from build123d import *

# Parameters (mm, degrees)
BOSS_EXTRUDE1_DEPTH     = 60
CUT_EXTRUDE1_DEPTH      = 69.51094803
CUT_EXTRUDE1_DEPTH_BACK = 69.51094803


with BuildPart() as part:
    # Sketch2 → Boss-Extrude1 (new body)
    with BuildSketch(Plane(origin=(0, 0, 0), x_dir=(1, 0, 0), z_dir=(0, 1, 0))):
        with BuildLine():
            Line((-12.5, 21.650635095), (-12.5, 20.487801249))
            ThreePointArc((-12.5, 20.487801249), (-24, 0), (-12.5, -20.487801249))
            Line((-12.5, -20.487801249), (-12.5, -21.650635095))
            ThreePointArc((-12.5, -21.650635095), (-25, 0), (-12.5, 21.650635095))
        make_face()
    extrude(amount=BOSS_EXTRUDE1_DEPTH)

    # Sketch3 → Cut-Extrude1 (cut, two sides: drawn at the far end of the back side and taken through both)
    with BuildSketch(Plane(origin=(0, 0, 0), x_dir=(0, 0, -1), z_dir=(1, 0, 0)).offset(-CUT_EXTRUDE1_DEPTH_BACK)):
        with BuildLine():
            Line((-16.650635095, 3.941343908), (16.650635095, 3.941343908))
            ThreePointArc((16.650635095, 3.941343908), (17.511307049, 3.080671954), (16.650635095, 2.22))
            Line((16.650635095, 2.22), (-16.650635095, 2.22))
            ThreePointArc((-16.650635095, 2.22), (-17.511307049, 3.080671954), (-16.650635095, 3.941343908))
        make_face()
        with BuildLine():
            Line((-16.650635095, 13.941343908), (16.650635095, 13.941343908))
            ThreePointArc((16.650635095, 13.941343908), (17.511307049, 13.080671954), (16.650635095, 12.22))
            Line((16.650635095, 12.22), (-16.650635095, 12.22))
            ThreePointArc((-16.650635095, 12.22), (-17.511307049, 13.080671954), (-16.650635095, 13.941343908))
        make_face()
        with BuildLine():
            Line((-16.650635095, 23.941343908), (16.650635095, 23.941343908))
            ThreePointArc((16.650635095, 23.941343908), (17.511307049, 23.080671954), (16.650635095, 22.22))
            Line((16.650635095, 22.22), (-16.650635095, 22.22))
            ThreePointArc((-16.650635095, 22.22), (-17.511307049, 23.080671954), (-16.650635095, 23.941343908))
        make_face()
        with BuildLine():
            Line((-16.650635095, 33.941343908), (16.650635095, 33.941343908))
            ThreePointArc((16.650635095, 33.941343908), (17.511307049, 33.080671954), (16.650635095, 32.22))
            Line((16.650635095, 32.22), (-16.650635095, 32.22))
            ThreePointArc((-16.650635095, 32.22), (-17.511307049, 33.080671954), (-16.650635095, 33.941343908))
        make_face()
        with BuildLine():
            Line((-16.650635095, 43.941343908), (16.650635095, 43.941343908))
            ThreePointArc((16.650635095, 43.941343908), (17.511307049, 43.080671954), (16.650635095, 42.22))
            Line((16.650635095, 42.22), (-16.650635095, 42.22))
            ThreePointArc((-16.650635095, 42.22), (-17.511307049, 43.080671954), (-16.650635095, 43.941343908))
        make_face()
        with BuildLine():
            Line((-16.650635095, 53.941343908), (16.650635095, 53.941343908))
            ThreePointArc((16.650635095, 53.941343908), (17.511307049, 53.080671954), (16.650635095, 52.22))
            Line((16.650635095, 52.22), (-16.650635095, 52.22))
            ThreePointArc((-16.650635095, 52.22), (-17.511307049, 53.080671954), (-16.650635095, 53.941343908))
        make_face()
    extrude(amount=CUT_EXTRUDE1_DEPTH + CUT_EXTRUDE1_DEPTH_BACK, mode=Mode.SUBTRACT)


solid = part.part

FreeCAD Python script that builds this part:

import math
import FreeCAD as App
import Part
import Sketcher

V = App.Vector
Q = App.Units.Quantity

doc = App.newDocument("Part")
body = doc.addObject("PartDesign::Body", "Body")

# Sketch on XZ plane
sketch1 = body.newObject("Sketcher::SketchObject", "Sketch")
sketch1.AttachmentSupport = (doc.getObject("XZ_Plane"), [""])
sketch1.MapMode = "FlatFace"
sketch1.addGeometry([
    Part.LineSegment(V(-12.5, -20.5, 0), V(-12.5, -21.7, 0)),
    Part.ArcOfCircle(Part.Circle(V(0, 0, 0), V(0, 0, 1), 25), math.radians(120), math.radians(240)),
    Part.LineSegment(V(-12.5, 21.7, 0), V(-12.5, 20.5, 0)),
    Part.ArcOfCircle(Part.Circle(V(0, 0, 0), V(0, 0, 1), 24), math.radians(121), math.radians(239)),
], False)
sketch1.addConstraint([
    Sketcher.Constraint("Coincident", 0, 2, 1, 2),
    Sketcher.Constraint("Coincident", 1, 1, 2, 1),
    Sketcher.Constraint("Coincident", 2, 2, 3, 1),
    Sketcher.Constraint("Coincident", 3, 2, 0, 1),
    Sketcher.Constraint("Vertical", 0),
    Sketcher.Constraint("Vertical", 2),
    Sketcher.Constraint("Coincident", 1, 3, -1, 1),
    Sketcher.Constraint("Coincident", 3, 3, -1, 1),
    Sketcher.Constraint("Vertical", 0, 2, 1, 1),
    Sketcher.Constraint("Radius", 1, Q("25 mm")),
    Sketcher.Constraint("Radius", 3, Q("24 mm")),
    Sketcher.Constraint("DistanceX", 0, 2, -1, 1, Q("12.5 mm")),
])
pad1 = body.newObject("PartDesign::Pad", "Pad")
pad1.Profile = sketch1
pad1.Length = 60
pad1.Reversed = True

# Sketch on YZ plane
sketch2 = body.newObject("Sketcher::SketchObject", "Sketch001")
sketch2.AttachmentSupport = (doc.getObject("YZ_Plane"), [""])
sketch2.MapMode = "FlatFace"
sketch2.addGeometry([
    Part.LineSegment(V(3.9, -16.7, 0), V(3.9, 16.7, 0)),  # 0
    Part.ArcOfCircle(Part.Circle(V(3.1, 16.7, 0), V(0, 0, 1), 0.9), math.radians(0), math.radians(180)),  # 1
    Part.LineSegment(V(2.2, 16.7, 0), V(2.2, -16.7, 0)),  # 2
    Part.ArcOfCircle(Part.Circle(V(3.1, -16.7, 0), V(0, 0, 1), 0.9), math.radians(180), math.radians(360)),  # 3
    Part.LineSegment(V(13.9, -16.7, 0), V(13.9, 16.7, 0)),  # 4
    Part.ArcOfCircle(Part.Circle(V(13.1, 16.7, 0), V(0, 0, 1), 0.9), math.radians(0), math.radians(180)),  # 5
    Part.LineSegment(V(12.2, 16.7, 0), V(12.2, -16.7, 0)),  # 6
    Part.ArcOfCircle(Part.Circle(V(13.1, -16.7, 0), V(0, 0, 1), 0.9), math.radians(180), math.radians(360)),  # 7
    Part.LineSegment(V(23.9, -16.7, 0), V(23.9, 16.7, 0)),  # 8
    Part.ArcOfCircle(Part.Circle(V(23.1, 16.7, 0), V(0, 0, 1), 0.9), math.radians(0), math.radians(180)),  # 9
    Part.LineSegment(V(22.2, 16.7, 0), V(22.2, -16.7, 0)),  # 10
    Part.ArcOfCircle(Part.Circle(V(23.1, -16.7, 0), V(0, 0, 1), 0.9), math.radians(180), math.radians(360)),  # 11
    Part.LineSegment(V(33.9, -16.7, 0), V(33.9, 16.7, 0)),  # 12
    Part.ArcOfCircle(Part.Circle(V(33.1, 16.7, 0), V(0, 0, 1), 0.9), math.radians(0), math.radians(180)),  # 13
    Part.LineSegment(V(32.2, 16.7, 0), V(32.2, -16.7, 0)),  # 14
    Part.ArcOfCircle(Part.Circle(V(33.1, -16.7, 0), V(0, 0, 1), 0.9), math.radians(180), math.radians(360)),  # 15
    Part.LineSegment(V(43.9, -16.7, 0), V(43.9, 16.7, 0)),  # 16
    Part.ArcOfCircle(Part.Circle(V(43.1, 16.7, 0), V(0, 0, 1), 0.9), math.radians(0), math.radians(180)),  # 17
    Part.LineSegment(V(42.2, 16.7, 0), V(42.2, -16.7, 0)),  # 18
    Part.ArcOfCircle(Part.Circle(V(43.1, -16.7, 0), V(0, 0, 1), 0.9), math.radians(180), math.radians(360)),  # 19
    Part.LineSegment(V(53.9, -16.7, 0), V(53.9, 16.7, 0)),  # 20
    Part.ArcOfCircle(Part.Circle(V(53.1, 16.7, 0), V(0, 0, 1), 0.9), math.radians(0), math.radians(180)),  # 21
    Part.LineSegment(V(52.2, 16.7, 0), V(52.2, -16.7, 0)),  # 22
    Part.ArcOfCircle(Part.Circle(V(53.1, -16.7, 0), V(0, 0, 1), 0.9), math.radians(180), math.radians(360)),  # 23
], False)
sketch2.addConstraint([
    Sketcher.Constraint("Tangent", 0, 2, 1, 1),
    Sketcher.Constraint("Tangent", 1, 2, 2, 1),
    Sketcher.Constraint("Tangent", 2, 2, 3, 1),
    Sketcher.Constraint("Tangent", 3, 2, 0, 1),
    Sketcher.Constraint("Tangent", 4, 2, 5, 1),
    Sketcher.Constraint("Tangent", 5, 2, 6, 1),
    Sketcher.Constraint("Tangent", 6, 2, 7, 1),
    Sketcher.Constraint("Tangent", 7, 2, 4, 1),
    Sketcher.Constraint("Tangent", 8, 2, 9, 1),
    Sketcher.Constraint("Tangent", 9, 2, 10, 1),
    Sketcher.Constraint("Tangent", 10, 2, 11, 1),
    Sketcher.Constraint("Tangent", 11, 2, 8, 1),
    Sketcher.Constraint("Tangent", 12, 2, 13, 1),
    Sketcher.Constraint("Tangent", 13, 2, 14, 1),
    Sketcher.Constraint("Tangent", 14, 2, 15, 1),
    Sketcher.Constraint("Tangent", 15, 2, 12, 1),
    Sketcher.Constraint("Tangent", 16, 2, 17, 1),
    Sketcher.Constraint("Tangent", 17, 2, 18, 1),
    Sketcher.Constraint("Tangent", 18, 2, 19, 1),
    Sketcher.Constraint("Tangent", 19, 2, 16, 1),
    Sketcher.Constraint("Tangent", 20, 2, 21, 1),
    Sketcher.Constraint("Tangent", 21, 2, 22, 1),
    Sketcher.Constraint("Tangent", 22, 2, 23, 1),
    Sketcher.Constraint("Tangent", 23, 2, 20, 1),
    Sketcher.Constraint("Vertical", 0),
    Sketcher.Constraint("Vertical", 2),
    Sketcher.Constraint("Vertical", 4),
    Sketcher.Constraint("Vertical", 6),
    Sketcher.Constraint("Vertical", 8),
    Sketcher.Constraint("Vertical", 10),
    Sketcher.Constraint("Vertical", 12),
    Sketcher.Constraint("Vertical", 14),
    Sketcher.Constraint("Vertical", 16),
    Sketcher.Constraint("Vertical", 18),
    Sketcher.Constraint("Vertical", 20),
    Sketcher.Constraint("Vertical", 22),
    Sketcher.Constraint("Equal", 3, 5),
    Sketcher.Constraint("Equal", 7, 9),
    Sketcher.Constraint("Equal", 11, 13),
    Sketcher.Constraint("Equal", 15, 17),
    Sketcher.Constraint("Equal", 19, 21),
    Sketcher.Constraint("Horizontal", 1, 3, 5, 3),
    Sketcher.Constraint("Horizontal", 3, 3, 7, 3),
    Sketcher.Constraint("Horizontal", 5, 3, 9, 3),
    Sketcher.Constraint("Horizontal", 7, 3, 11, 3),
    Sketcher.Constraint("Horizontal", 9, 3, 13, 3),
    Sketcher.Constraint("Horizontal", 11, 3, 15, 3),
    Sketcher.Constraint("Horizontal", 13, 3, 17, 3),
    Sketcher.Constraint("Horizontal", 15, 3, 19, 3),
    Sketcher.Constraint("Horizontal", 17, 3, 21, 3),
    Sketcher.Constraint("Horizontal", 19, 3, 23, 3),
    Sketcher.Constraint("DistanceX", 1, 3, 5, 3, Q("10 mm")),
    Sketcher.Constraint("DistanceX", 5, 3, 9, 3, Q("10 mm")),
    Sketcher.Constraint("DistanceX", 9, 3, 13, 3, Q("10 mm")),
    Sketcher.Constraint("DistanceX", 13, 3, 17, 3, Q("10 mm")),
    Sketcher.Constraint("DistanceX", 17, 3, 21, 3, Q("10 mm")),
    Sketcher.Constraint("DistanceX", -1, 1, 1, 2, Q("2.22 mm")),
    Sketcher.Constraint("Radius", 1, Q("0.860672 mm")),
    Sketcher.Constraint("DistanceY", 0, 1, 0, 2, Q("33.30127 mm")),
    Sketcher.Constraint("DistanceY", -1, 1, 1, 3, Q("16.650635 mm")),
])
pocket1 = body.newObject("PartDesign::Pocket", "Pocket")
pocket1.Profile = sketch2
pocket1.Type = "ThroughAll"
pocket1.Midplane = True

doc.recompute()
